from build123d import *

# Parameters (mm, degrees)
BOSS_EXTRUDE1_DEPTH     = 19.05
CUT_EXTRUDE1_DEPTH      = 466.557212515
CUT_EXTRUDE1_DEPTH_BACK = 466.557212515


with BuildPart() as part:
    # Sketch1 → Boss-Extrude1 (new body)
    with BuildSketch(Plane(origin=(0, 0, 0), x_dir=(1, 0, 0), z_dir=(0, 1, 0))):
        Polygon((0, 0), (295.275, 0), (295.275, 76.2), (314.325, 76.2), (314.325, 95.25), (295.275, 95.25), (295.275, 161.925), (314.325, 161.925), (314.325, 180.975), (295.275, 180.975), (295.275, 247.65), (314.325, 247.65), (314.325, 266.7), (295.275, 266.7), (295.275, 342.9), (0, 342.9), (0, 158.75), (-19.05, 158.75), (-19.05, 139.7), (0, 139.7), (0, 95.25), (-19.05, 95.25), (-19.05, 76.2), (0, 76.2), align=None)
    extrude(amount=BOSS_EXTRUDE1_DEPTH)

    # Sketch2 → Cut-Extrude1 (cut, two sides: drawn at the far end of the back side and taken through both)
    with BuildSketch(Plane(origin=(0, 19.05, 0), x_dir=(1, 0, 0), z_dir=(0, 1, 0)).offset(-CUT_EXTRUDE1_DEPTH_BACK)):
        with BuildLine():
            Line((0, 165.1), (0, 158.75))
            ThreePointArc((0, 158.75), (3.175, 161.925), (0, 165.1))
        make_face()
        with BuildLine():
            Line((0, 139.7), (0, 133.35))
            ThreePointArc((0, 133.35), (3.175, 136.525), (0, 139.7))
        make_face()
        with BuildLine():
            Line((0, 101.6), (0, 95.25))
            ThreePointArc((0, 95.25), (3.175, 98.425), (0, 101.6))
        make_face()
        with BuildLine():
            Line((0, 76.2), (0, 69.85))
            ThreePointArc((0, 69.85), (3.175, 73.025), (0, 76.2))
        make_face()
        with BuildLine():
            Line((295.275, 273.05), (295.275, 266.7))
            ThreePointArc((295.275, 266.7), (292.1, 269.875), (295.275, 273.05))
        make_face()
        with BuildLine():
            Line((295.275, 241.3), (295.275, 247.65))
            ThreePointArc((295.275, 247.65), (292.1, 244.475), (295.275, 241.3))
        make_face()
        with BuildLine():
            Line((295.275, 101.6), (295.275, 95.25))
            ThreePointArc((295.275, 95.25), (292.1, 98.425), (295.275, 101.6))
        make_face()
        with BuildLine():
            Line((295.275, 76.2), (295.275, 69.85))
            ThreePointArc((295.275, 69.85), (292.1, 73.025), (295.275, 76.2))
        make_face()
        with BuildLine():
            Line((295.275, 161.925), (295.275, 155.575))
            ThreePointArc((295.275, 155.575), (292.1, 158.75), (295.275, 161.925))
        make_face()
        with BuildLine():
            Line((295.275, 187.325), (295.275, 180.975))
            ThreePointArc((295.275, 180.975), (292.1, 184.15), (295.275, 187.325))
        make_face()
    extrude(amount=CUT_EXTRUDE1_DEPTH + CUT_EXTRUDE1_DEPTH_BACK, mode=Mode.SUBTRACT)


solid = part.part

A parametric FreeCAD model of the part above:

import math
import FreeCAD as App
import Part
import Sketcher

V = App.Vector
Q = App.Units.Quantity


def add_polygon(sketch, points):
    """Adds a closed chain of lines whose ends are joined by coincident constraints."""
    first, n = sketch.GeometryCount, len(points)
    for a, b in zip(points, points[1:] + points[:1]):
        sketch.addGeometry(Part.LineSegment(App.Vector(*a, 0), App.Vector(*b, 0)), False)
    for i in range(n):
        sketch.addConstraint(Sketcher.Constraint("Coincident", first + i, 2, first + (i + 1) % n, 1))

doc = App.newDocument("Part")
body = doc.addObject("PartDesign::Body", "Body")

sketch1 = body.newObject("Sketcher::SketchObject", "Sketch")
sketch1.AttachmentSupport = (doc.getObject("XZ_Plane"), [""])
sketch1.MapMode = "FlatFace"
add_polygon(sketch1, [(0, 0), (295, 0), (295, -76), (314, -76), (314, -95), (295, -95), (295, -162), (314, -162), (314, -181), (295, -181), (295, -248), (314, -248), (314, -267), (295, -267), (295, -343), (0, -343), (0, -159), (-19, -159), (-19, -140), (0, -140), (0, -95), (-19, -95), (-19, -76), (0, -76)])
sketch1.addConstraint(Sketcher.Constraint("Horizontal", 0))
sketch1.addConstraint(Sketcher.Constraint("Vertical", 1))
sketch1.addConstraint(Sketcher.Constraint("Horizontal", 2))
sketch1.addConstraint(Sketcher.Constraint("Vertical", 3))
sketch1.addConstraint(Sketcher.Constraint("Horizontal", 4))
sketch1.addConstraint(Sketcher.Constraint("Vertical", 5))
sketch1.addConstraint(Sketcher.Constraint("Horizontal", 6))
sketch1.addConstraint(Sketcher.Constraint("Vertical", 7))
sketch1.addConstraint(Sketcher.Constraint("Horizontal", 8))
sketch1.addConstraint(Sketcher.Constraint("Vertical", 9))
sketch1.addConstraint(Sketcher.Constraint("Horizontal", 10))
sketch1.addConstraint(Sketcher.Constraint("Vertical", 11))
sketch1.addConstraint(Sketcher.Constraint("Horizontal", 12))
sketch1.addConstraint(Sketcher.Constraint("Vertical", 13))
sketch1.addConstraint(Sketcher.Constraint("Horizontal", 14))
sketch1.addConstraint(Sketcher.Constraint("Vertical", 15))
sketch1.addConstraint(Sketcher.Constraint("Horizontal", 16))
sketch1.addConstraint(Sketcher.Constraint("Vertical", 17))
sketch1.addConstraint(Sketcher.Constraint("Horizontal", 18))
sketch1.addConstraint(Sketcher.Constraint("Vertical", 19))
sketch1.addConstraint(Sketcher.Constraint("Horizontal", 20))
sketch1.addConstraint(Sketcher.Constraint("Vertical", 21))
sketch1.addConstraint(Sketcher.Constraint("Horizontal", 22))
sketch1.addConstraint(Sketcher.Constraint("Vertical", 23))
sketch1.addConstraint(Sketcher.Constraint("Coincident", 23, 2, -1, 1))
sketch1.addConstraint(Sketcher.Constraint("PointOnObject", 14, 2, -2))
sketch1.addConstraint(Sketcher.Constraint("PointOnObject", 18, 2, -2))
sketch1.addConstraint(Sketcher.Constraint("Horizontal", 4, 2, 19, 2))
sketch1.addConstraint(Sketcher.Constraint("Horizontal", 2, 2, 21, 2))
sketch1.addConstraint(Sketcher.Constraint("Vertical", 1, 2, 4, 2))
sketch1.addConstraint(Sketcher.Constraint("Vertical", 3, 2, 6, 2))
sketch1.addConstraint(Sketcher.Constraint("Vertical", 5, 2, 8, 2))
sketch1.addConstraint(Sketcher.Constraint("Vertical", 7, 2, 10, 2))
sketch1.addConstraint(Sketcher.Constraint("Vertical", 9, 2, 12, 2))
sketch1.addConstraint(Sketcher.Constraint("Vertical", 17, 2, 20, 2))
sketch1.addConstraint(Sketcher.Constraint("Equal", 12, 16))
sketch1.addConstraint(Sketcher.Constraint("Equal", 22, 3))
sketch1.addConstraint(Sketcher.Constraint("Equal", 3, 7))
sketch1.addConstraint(Sketcher.Constraint("Equal", 5, 9))
sketch1.addConstraint(Sketcher.Constraint("Equal", 7, 11))
sketch1.addConstraint(Sketcher.Constraint("Equal", 1, 13))
sketch1.addConstraint(Sketcher.Constraint("Equal", 11, 17))
sketch1.addConstraint(Sketcher.Constraint("DistanceY", 1, 2, 1, 1, Q("3 in")))
sketch1.addConstraint(Sketcher.Constraint("DistanceY", 9, 2, 4, 2, Q("6 in")))
sketch1.addConstraint(Sketcher.Constraint("DistanceY", 14, 2, 17, 2, Q("8 in")))
sketch1.addConstraint(Sketcher.Constraint("DistanceX", 2, 1, 2, 2, Q("0.75 in")))
sketch1.addConstraint(Sketcher.Constraint("DistanceX", 0, 1, 0, 2, Q("11.625 in")))
pad1 = body.newObject("PartDesign::Pad", "Pad")
pad1.Profile = sketch1
pad1.Length = Q("0.75 in")
pad1.Reversed = True

sketch2 = body.newObject("Sketcher::SketchObject", "Sketch001")
sketch2.AttachmentSupport = (doc.getObject("XZ_Plane"), [""])
sketch2.MapMode = "FlatFace"
sketch2.AttachmentOffset = App.Placement(V(0, 0, -0.75 * 25.4), App.Rotation())
sketch2.addGeometry(Part.LineSegment(V(0, -165.1, 0), V(0, -158.8, 0)), False)
sketch2.addGeometry(Part.ArcOfCircle(Part.Circle(V(0, -161.9, 0), V(0, 0, 1), 3.2), math.radians(-90), math.radians(90)), False)
sketch2.addGeometry(Part.LineSegment(V(0, -139.7, 0), V(0, -133.3, 0)), False)
sketch2.addGeometry(Part.ArcOfCircle(Part.Circle(V(0, -136.5, 0), V(0, 0, 1), 3.2), math.radians(-90), math.radians(90)), False)
sketch2.addGeometry(Part.LineSegment(V(0, -101.6, 0), V(0, -95.2, 0)), False)
sketch2.addGeometry(Part.ArcOfCircle(Part.Circle(V(0, -98.4, 0), V(0, 0, 1), 3.2), math.radians(-90), math.radians(90)), False)
sketch2.addGeometry(Part.LineSegment(V(0, -76.2, 0), V(0, -69.8, 0)), False)
sketch2.addGeometry(Part.ArcOfCircle(Part.Circle(V(0, -73, 0), V(0, 0, 1), 3.2), math.radians(-90), math.radians(90)), False)
sketch2.addGeometry(Part.LineSegment(V(295.3, -266.7, 0), V(295.3, -273.1, 0)), False)
sketch2.addGeometry(Part.ArcOfCircle(Part.Circle(V(295.3, -269.9, 0), V(0, 0, 1), 3.2), math.radians(90), math.radians(270)), False)
sketch2.addGeometry(Part.LineSegment(V(295.3, -241.3, 0), V(295.3, -247.7, 0)), False)
sketch2.addGeometry(Part.ArcOfCircle(Part.Circle(V(295.3, -244.5, 0), V(0, 0, 1), 3.2), math.radians(90), math.radians(270)), False)
sketch2.addGeometry(Part.LineSegment(V(295.3, -95.2, 0), V(295.3, -101.6, 0)), False)
sketch2.addGeometry(Part.ArcOfCircle(Part.Circle(V(295.3, -98.4, 0), V(0, 0, 1), 3.2), math.radians(90), math.radians(270)), False)
sketch2.addGeometry(Part.LineSegment(V(295.3, -69.8, 0), V(295.3, -76.2, 0)), False)
sketch2.addGeometry(Part.ArcOfCircle(Part.Circle(V(295.3, -73, 0), V(0, 0, 1), 3.2), math.radians(90), math.radians(270)), False)
sketch2.addGeometry(Part.LineSegment(V(295.3, -155.6, 0), V(295.3, -161.9, 0)), False)
sketch2.addGeometry(Part.ArcOfCircle(Part.Circle(V(295.3, -158.8, 0), V(0, 0, 1), 3.2), math.radians(90), math.radians(270)), False)
sketch2.addGeometry(Part.LineSegment(V(295.3, -181, 0), V(295.3, -187.3, 0)), False)
sketch2.addGeometry(Part.ArcOfCircle(Part.Circle(V(295.3, -184.2, 0), V(0, 0, 1), 3.2), math.radians(90), math.radians(270)), False)
sketch2.addConstraint(Sketcher.Constraint("Coincident", 0, 1, 1, 1))
sketch2.addConstraint(Sketcher.Constraint("Coincident", 1, 2, 0, 2))
sketch2.addConstraint(Sketcher.Constraint("Coincident", 2, 1, 3, 1))
sketch2.addConstraint(Sketcher.Constraint("Coincident", 3, 2, 2, 2))
sketch2.addConstraint(Sketcher.Constraint("Coincident", 4, 1, 5, 1))
sketch2.addConstraint(Sketcher.Constraint("Coincident", 5, 2, 4, 2))
sketch2.addConstraint(Sketcher.Constraint("Coincident", 6, 1, 7, 1))
sketch2.addConstraint(Sketcher.Constraint("Coincident", 7, 2, 6, 2))
sketch2.addConstraint(Sketcher.Constraint("Coincident", 8, 1, 9, 1))
sketch2.addConstraint(Sketcher.Constraint("Coincident", 9, 2, 8, 2))
sketch2.addConstraint(Sketcher.Constraint("Coincident", 10, 1, 11, 1))
sketch2.addConstraint(Sketcher.Constraint("Coincident", 11, 2, 10, 2))
sketch2.addConstraint(Sketcher.Constraint("Coincident", 12, 1, 13, 1))
sketch2.addConstraint(Sketcher.Constraint("Coincident", 13, 2, 12, 2))
sketch2.addConstraint(Sketcher.Constraint("Coincident", 14, 1, 15, 1))
sketch2.addConstraint(Sketcher.Constraint("Coincident", 15, 2, 14, 2))
sketch2.addConstraint(Sketcher.Constraint("Coincident", 16, 1, 17, 1))
sketch2.addConstraint(Sketcher.Constraint("Coincident", 17, 2, 16, 2))
sketch2.addConstraint(Sketcher.Constraint("Coincident", 18, 1, 19, 1))
sketch2.addConstraint(Sketcher.Constraint("Coincident", 19, 2, 18, 2))
sketch2.addConstraint(Sketcher.Constraint("Vertical", 0))
sketch2.addConstraint(Sketcher.Constraint("Vertical", 2))
sketch2.addConstraint(Sketcher.Constraint("Vertical", 4))
sketch2.addConstraint(Sketcher.Constraint("Vertical", 6))
sketch2.addConstraint(Sketcher.Constraint("Vertical", 8))
sketch2.addConstraint(Sketcher.Constraint("Vertical", 10))
sketch2.addConstraint(Sketcher.Constraint("Vertical", 12))
sketch2.addConstraint(Sketcher.Constraint("Vertical", 14))
sketch2.addConstraint(Sketcher.Constraint("Vertical", 16))
sketch2.addConstraint(Sketcher.Constraint("Vertical", 18))
sketch2.addConstraint(Sketcher.Constraint("Equal", 1, 3))
sketch2.addConstraint(Sketcher.Constraint("Equal", 3, 5))
sketch2.addConstraint(Sketcher.Constraint("Equal", 5, 7))
sketch2.addConstraint(Sketcher.Constraint("Equal", 7, 9))
sketch2.addConstraint(Sketcher.Constraint("Equal", 9, 11))
sketch2.addConstraint(Sketcher.Constraint("Equal", 11, 13))
sketch2.addConstraint(Sketcher.Constraint("Equal", 13, 15))
sketch2.addConstraint(Sketcher.Constraint("Equal", 15, 17))
sketch2.addConstraint(Sketcher.Constraint("Equal", 17, 19))
sketch2.addConstraint(Sketcher.Constraint("PointOnObject", 1, 3, -2))
sketch2.addConstraint(Sketcher.Constraint("PointOnObject", 3, 3, -2))
sketch2.addConstraint(Sketcher.Constraint("PointOnObject", 5, 3, -2))
sketch2.addConstraint(Sketcher.Constraint("PointOnObject", 7, 3, -2))
sketch2.addConstraint(Sketcher.Constraint("PointOnObject", 0, 1, -2))
sketch2.addConstraint(Sketcher.Constraint("PointOnObject", 2, 1, -2))
sketch2.addConstraint(Sketcher.Constraint("PointOnObject", 4, 1, -2))
sketch2.addConstraint(Sketcher.Constraint("PointOnObject", 6, 1, -2))
sketch2.addConstraint(Sketcher.Constraint("Horizontal", 5, 3, 13, 3))
sketch2.addConstraint(Sketcher.Constraint("Horizontal", 7, 3, 15, 3))
sketch2.addConstraint(Sketcher.Constraint("Horizontal", 17, 3, 1, 2))
sketch2.addConstraint(Sketcher.Constraint("Vertical", 9, 3, 11, 3))
sketch2.addConstraint(Sketcher.Constraint("Vertical", 11, 3, 13, 3))
sketch2.addConstraint(Sketcher.Constraint("Vertical", 13, 3, 15, 3))
sketch2.addConstraint(Sketcher.Constraint("Vertical", 15, 3, 17, 3))
sketch2.addConstraint(Sketcher.Constraint("Vertical", 17, 3, 19, 3))
sketch2.addConstraint(Sketcher.Constraint("Vertical", 19, 3, 8, 1))
sketch2.addConstraint(Sketcher.Constraint("Vertical", 9, 2, 10, 1))
sketch2.addConstraint(Sketcher.Constraint("Vertical", 11, 2, 12, 1))
sketch2.addConstraint(Sketcher.Constraint("Vertical", 13, 2, 14, 1))
sketch2.addConstraint(Sketcher.Constraint("Vertical", 15, 2, 16, 1))
sketch2.addConstraint(Sketcher.Constraint("Vertical", 17, 2, 18, 1))
sketch2.addConstraint(Sketcher.Constraint("DistanceY", 4, 1, -1, 1, Q("4 in")))
sketch2.addConstraint(Sketcher.Constraint("DistanceY", 6, 1, -1, 1, Q("3 in")))
sketch2.addConstraint(Sketcher.Constraint("Radius", 1, Q("0.125 in")))
sketch2.addConstraint(Sketcher.Constraint("DistanceY", 1, 3, 3, 3, Q("1 in")))
sketch2.addConstraint(Sketcher.Constraint("DistanceY", 9, 3, 11, 3, Q("1 in")))
sketch2.addConstraint(Sketcher.Constraint("DistanceY", 19, 3, 17, 3, Q("1 in")))
sketch2.addConstraint(Sketcher.Constraint("DistanceY", 0, 1, -1, 1, Q("6.5 in")))
sketch2.addConstraint(Sketcher.Constraint("DistanceY", 8, 1, -1, 1, Q("10.5 in")))
sketch2.addConstraint(Sketcher.Constraint("DistanceX", -1, 1, 9, 3, Q("11.625 in")))
pocket1 = body.newObject("PartDesign::Pocket", "Pocket")
pocket1.Profile = sketch2
pocket1.Type = "ThroughAll"
pocket1.Midplane = True

doc.recompute()
